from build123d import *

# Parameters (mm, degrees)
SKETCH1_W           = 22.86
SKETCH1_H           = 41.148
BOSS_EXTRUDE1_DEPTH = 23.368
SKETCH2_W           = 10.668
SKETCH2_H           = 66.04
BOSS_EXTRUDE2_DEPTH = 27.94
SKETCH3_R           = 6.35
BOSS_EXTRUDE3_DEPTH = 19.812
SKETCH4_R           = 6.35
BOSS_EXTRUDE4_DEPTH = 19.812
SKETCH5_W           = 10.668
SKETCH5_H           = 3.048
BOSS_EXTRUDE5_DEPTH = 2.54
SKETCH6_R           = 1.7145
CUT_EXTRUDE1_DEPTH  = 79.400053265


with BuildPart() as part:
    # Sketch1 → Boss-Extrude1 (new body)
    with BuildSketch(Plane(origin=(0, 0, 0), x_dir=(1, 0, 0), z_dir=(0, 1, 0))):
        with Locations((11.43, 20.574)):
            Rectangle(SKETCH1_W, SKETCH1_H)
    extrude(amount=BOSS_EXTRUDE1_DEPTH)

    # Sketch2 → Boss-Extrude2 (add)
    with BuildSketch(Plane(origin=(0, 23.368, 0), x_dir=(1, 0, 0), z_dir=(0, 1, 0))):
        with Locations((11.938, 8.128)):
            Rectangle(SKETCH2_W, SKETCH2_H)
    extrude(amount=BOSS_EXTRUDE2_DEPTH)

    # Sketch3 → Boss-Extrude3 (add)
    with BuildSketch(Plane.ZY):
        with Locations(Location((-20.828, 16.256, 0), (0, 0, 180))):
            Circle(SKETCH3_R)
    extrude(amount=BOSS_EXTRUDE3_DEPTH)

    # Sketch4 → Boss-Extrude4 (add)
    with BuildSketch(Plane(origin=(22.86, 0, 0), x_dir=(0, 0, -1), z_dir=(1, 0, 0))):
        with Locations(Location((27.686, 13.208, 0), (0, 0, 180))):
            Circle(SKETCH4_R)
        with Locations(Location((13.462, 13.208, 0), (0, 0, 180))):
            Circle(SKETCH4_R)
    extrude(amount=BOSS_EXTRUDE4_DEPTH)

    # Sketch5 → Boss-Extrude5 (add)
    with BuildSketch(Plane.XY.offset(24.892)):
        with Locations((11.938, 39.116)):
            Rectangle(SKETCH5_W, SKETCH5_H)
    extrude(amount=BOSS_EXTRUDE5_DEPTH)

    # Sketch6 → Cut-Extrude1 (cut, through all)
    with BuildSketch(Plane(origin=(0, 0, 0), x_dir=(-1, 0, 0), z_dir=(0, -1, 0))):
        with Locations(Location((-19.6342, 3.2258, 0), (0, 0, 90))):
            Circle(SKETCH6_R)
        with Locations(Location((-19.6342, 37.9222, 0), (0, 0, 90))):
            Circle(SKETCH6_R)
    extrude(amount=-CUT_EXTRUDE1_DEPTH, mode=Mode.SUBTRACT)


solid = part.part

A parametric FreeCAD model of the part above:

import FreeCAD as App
import Part
import Sketcher

V = App.Vector
Q = App.Units.Quantity

doc = App.newDocument("Part")
params = doc.addObject("Spreadsheet::Sheet", "Params")
for row, (alias, value) in enumerate([
    ("sketch1_width", "0.9 in"),
    ("sketch1_height", "1.62 in"),
    ("pad1_length", "0.92 in"),
    ("sketch2_height", "2.6 in"),
    ("sketch2_width", "0.42 in"),
    ("pad2_length", "1.1 in"),
    ("sketch3_diameter", "0.5 in"),
    ("pad3_length", "0.78 in"),
    ("sketch4_diameter", "0.5 in"),
    ("pad4_length", "0.78 in"),
    ("sketch5_width", "0.42 in"),
    ("sketch5_height", "0.12 in"),
    ("pad5_length", "0.1 in"),
    ("sketch6_diameter", "0.135 in"),
], start=1):
    params.set(f"A{row}", alias)
    params.set(f"B{row}", "=" + value)
    params.setAlias(f"B{row}", alias)

body = doc.addObject("PartDesign::Body", "Body")

# Sketch on XZ plane
sketch1 = body.newObject("Sketcher::SketchObject", "Sketch")
sketch1.AttachmentSupport = (doc.getObject("XZ_Plane"), [""])
sketch1.MapMode = "FlatFace"
sketch1.addGeometry(Part.LineSegment(V(0, -41.148, 0), V(0, 0, 0)), False)
sketch1.addGeometry(Part.LineSegment(V(0, 0, 0), V(22.86, 0, 0)), False)
sketch1.addGeometry(Part.LineSegment(V(22.86, 0, 0), V(22.86, -41.148, 0)), False)
sketch1.addGeometry(Part.LineSegment(V(22.86, -41.148, 0), V(0, -41.148, 0)), False)
sketch1.addConstraint(Sketcher.Constraint("Coincident", 0, 2, 1, 1))
sketch1.addConstraint(Sketcher.Constraint("Coincident", 1, 2, 2, 1))
sketch1.addConstraint(Sketcher.Constraint("Coincident", 2, 2, 3, 1))
sketch1.addConstraint(Sketcher.Constraint("Coincident", 3, 2, 0, 1))
sketch1.addConstraint(Sketcher.Constraint("Vertical", 0))
sketch1.addConstraint(Sketcher.Constraint("Horizontal", 1))
sketch1.addConstraint(Sketcher.Constraint("Vertical", 2))
sketch1.addConstraint(Sketcher.Constraint("Horizontal", 3))
sketch1.addConstraint(Sketcher.Constraint("Coincident", 0, 2, -1, 1))
sketch1.addConstraint(Sketcher.Constraint("DistanceX", 1, 1, 1, 2, Q("0.9 in")))
sketch1.addConstraint(Sketcher.Constraint("DistanceY", 0, 1, 0, 2, Q("1.62 in")))
sketch1.setExpression("Constraints[9]", "Params.sketch1_width")
sketch1.setExpression("Constraints[10]", "Params.sketch1_height")
pad1 = body.newObject("PartDesign::Pad", "Pad")
pad1.Profile = sketch1
pad1.setExpression("Length", "Params.pad1_length")
pad1.Reversed = True

# Sketch on XZ plane
sketch2 = body.newObject("Sketcher::SketchObject", "Sketch001")
sketch2.AttachmentSupport = (doc.getObject("XZ_Plane"), [""])
sketch2.MapMode = "FlatFace"
sketch2.AttachmentOffset = App.Placement(V(0, 0, -0.92 * 25.4), App.Rotation())
sketch2.addGeometry(Part.LineSegment(V(6.604, -41.148, 0), V(6.604, 24.892, 0)), False)
sketch2.addGeometry(Part.LineSegment(V(6.604, 24.892, 0), V(17.272, 24.892, 0)), False)
sketch2.addGeometry(Part.LineSegment(V(17.272, 24.892, 0), V(17.272, -41.148, 0)), False)
sketch2.addGeometry(Part.LineSegment(V(17.272, -41.148, 0), V(6.604, -41.148, 0)), False)
sketch2.addConstraint(Sketcher.Constraint("Coincident", 0, 2, 1, 1))
sketch2.addConstraint(Sketcher.Constraint("Coincident", 1, 2, 2, 1))
sketch2.addConstraint(Sketcher.Constraint("Coincident", 2, 2, 3, 1))
sketch2.addConstraint(Sketcher.Constraint("Coincident", 3, 2, 0, 1))
sketch2.addConstraint(Sketcher.Constraint("Vertical", 0))
sketch2.addConstraint(Sketcher.Constraint("Horizontal", 1))
sketch2.addConstraint(Sketcher.Constraint("Vertical", 2))
sketch2.addConstraint(Sketcher.Constraint("Horizontal", 3))
sketch2.addConstraint(Sketcher.Constraint("DistanceY", 0, 1, 0, 2, Q("2.6 in")))
sketch2.addConstraint(Sketcher.Constraint("DistanceX", 1, 1, 1, 2, Q("0.42 in")))
sketch2.addConstraint(Sketcher.Constraint("DistanceX", -1, 1, 0, 2, Q("0.26 in")))
sketch2.addConstraint(Sketcher.Constraint("DistanceY", -1, 1, 0, 2, Q("0.98 in")))
sketch2.setExpression("Constraints[8]", "Params.sketch2_height")
sketch2.setExpression("Constraints[9]", "Params.sketch2_width")
pad2 = body.newObject("PartDesign::Pad", "Pad001")
pad2.Profile = sketch2
pad2.setExpression("Length", "Params.pad2_length")
pad2.Reversed = True

# Sketch on YZ plane
sketch3 = body.newObject("Sketcher::SketchObject", "Sketch002")
sketch3.AttachmentSupport = (doc.getObject("YZ_Plane"), [""])
sketch3.MapMode = "FlatFace"
sketch3.addGeometry(Part.Circle(V(16.256, -20.828, 0), V(0, 0, 1), 6.35), False)
sketch3.addConstraint(Sketcher.Constraint("Diameter", 0, Q("0.5 in")))
sketch3.addConstraint(Sketcher.Constraint("DistanceX", -1, 1, 0, 3, Q("0.64 in")))
sketch3.addConstraint(Sketcher.Constraint("DistanceY", 0, 3, -1, 1, Q("0.82 in")))
sketch3.setExpression("Constraints[0]", "Params.sketch3_diameter")
pad3 = body.newObject("PartDesign::Pad", "Pad002")
pad3.Profile = sketch3
pad3.setExpression("Length", "Params.pad3_length")
pad3.Reversed = True

# Sketch on YZ plane
sketch4 = body.newObject("Sketcher::SketchObject", "Sketch003")
sketch4.AttachmentSupport = (doc.getObject("YZ_Plane"), [""])
sketch4.MapMode = "FlatFace"
sketch4.AttachmentOffset = App.Placement(V(0, 0, 0.9 * 25.4), App.Rotation())
sketch4.addGeometry(Part.Circle(V(13.208, -27.686, 0), V(0, 0, 1), 6.35), False)
sketch4.addGeometry(Part.Circle(V(13.208, -13.462, 0), V(0, 0, 1), 6.35), False)
sketch4.addConstraint(Sketcher.Constraint("Equal", 0, 1))
sketch4.addConstraint(Sketcher.Constraint("Vertical", 0, 3, 1, 3))
sketch4.addConstraint(Sketcher.Constraint("Diameter", 0, Q("0.5 in")))
sketch4.addConstraint(Sketcher.Constraint("DistanceX", -1, 1, 0, 3, Q("0.52 in")))
sketch4.addConstraint(Sketcher.Constraint("DistanceY", 0, 3, -1, 1, Q("1.09 in")))
sketch4.addConstraint(Sketcher.Constraint("DistanceY", 1, 3, -1, 1, Q("0.53 in")))
sketch4.setExpression("Constraints[2]", "Params.sketch4_diameter")
pad4 = body.newObject("PartDesign::Pad", "Pad003")
pad4.Profile = sketch4
pad4.setExpression("Length", "Params.pad4_length")

# Sketch on XY plane
sketch5 = body.newObject("Sketcher::SketchObject", "Sketch004")
sketch5.AttachmentSupport = (doc.getObject("XY_Plane"), [""])
sketch5.MapMode = "FlatFace"
sketch5.AttachmentOffset = App.Placement(V(0, 0, 0.98 * 25.4), App.Rotation())
sketch5.addGeometry(Part.LineSegment(V(6.604, 40.64, 0), V(6.604, 37.592, 0)), False)
sketch5.addGeometry(Part.LineSegment(V(6.604, 37.592, 0), V(17.272, 37.592, 0)), False)
sketch5.addGeometry(Part.LineSegment(V(17.272, 37.592, 0), V(17.272, 40.64, 0)), False)
sketch5.addGeometry(Part.LineSegment(V(17.272, 40.64, 0), V(6.604, 40.64, 0)), False)
sketch5.addConstraint(Sketcher.Constraint("Coincident", 0, 2, 1, 1))
sketch5.addConstraint(Sketcher.Constraint("Coincident", 1, 2, 2, 1))
sketch5.addConstraint(Sketcher.Constraint("Coincident", 2, 2, 3, 1))
sketch5.addConstraint(Sketcher.Constraint("Coincident", 3, 2, 0, 1))
sketch5.addConstraint(Sketcher.Constraint("Vertical", 0))
sketch5.addConstraint(Sketcher.Constraint("Horizontal", 1))
sketch5.addConstraint(Sketcher.Constraint("Vertical", 2))
sketch5.addConstraint(Sketcher.Constraint("Horizontal", 3))
sketch5.addConstraint(Sketcher.Constraint("DistanceX", 1, 1, 1, 2, Q("0.42 in")))
sketch5.addConstraint(Sketcher.Constraint("DistanceY", 0, 2, 0, 1, Q("0.12 in")))
sketch5.addConstraint(Sketcher.Constraint("DistanceY", -1, 1, 2, 2, Q("1.6 in")))
sketch5.addConstraint(Sketcher.Constraint("DistanceX", -1, 1, 0, 2, Q("0.26 in")))
sketch5.setExpression("Constraints[8]", "Params.sketch5_width")
sketch5.setExpression("Constraints[9]", "Params.sketch5_height")
pad5 = body.newObject("PartDesign::Pad", "Pad004")
pad5.Profile = sketch5
pad5.setExpression("Length", "Params.pad5_length")

# Sketch on XZ plane
sketch6 = body.newObject("Sketcher::SketchObject", "Sketch005")
sketch6.AttachmentSupport = (doc.getObject("XZ_Plane"), [""])
sketch6.MapMode = "FlatFace"
sketch6.addGeometry(Part.Circle(V(19.6342, -3.2258, 0), V(0, 0, 1), 1.7145), False)
sketch6.addGeometry(Part.Circle(V(19.6342, -37.9222, 0), V(0, 0, 1), 1.7145), False)
sketch6.addConstraint(Sketcher.Constraint("Equal", 0, 1))
sketch6.addConstraint(Sketcher.Constraint("Vertical", 0, 3, 1, 3))
sketch6.addConstraint(Sketcher.Constraint("Diameter", 0, Q("0.135 in")))
sketch6.addConstraint(Sketcher.Constraint("DistanceX", -1, 1, 0, 3, Q("0.773 in")))
sketch6.addConstraint(Sketcher.Constraint("DistanceY", 0, 3, -1, 1, Q("0.127 in")))
sketch6.addConstraint(Sketcher.Constraint("DistanceY", 1, 3, -1, 1, Q("1.493 in")))
sketch6.setExpression("Constraints[2]", "Params.sketch6_diameter")
pocket1 = body.newObject("PartDesign::Pocket", "Pocket")
pocket1.Profile = sketch6
pocket1.Type = "ThroughAll"

doc.recompute()
